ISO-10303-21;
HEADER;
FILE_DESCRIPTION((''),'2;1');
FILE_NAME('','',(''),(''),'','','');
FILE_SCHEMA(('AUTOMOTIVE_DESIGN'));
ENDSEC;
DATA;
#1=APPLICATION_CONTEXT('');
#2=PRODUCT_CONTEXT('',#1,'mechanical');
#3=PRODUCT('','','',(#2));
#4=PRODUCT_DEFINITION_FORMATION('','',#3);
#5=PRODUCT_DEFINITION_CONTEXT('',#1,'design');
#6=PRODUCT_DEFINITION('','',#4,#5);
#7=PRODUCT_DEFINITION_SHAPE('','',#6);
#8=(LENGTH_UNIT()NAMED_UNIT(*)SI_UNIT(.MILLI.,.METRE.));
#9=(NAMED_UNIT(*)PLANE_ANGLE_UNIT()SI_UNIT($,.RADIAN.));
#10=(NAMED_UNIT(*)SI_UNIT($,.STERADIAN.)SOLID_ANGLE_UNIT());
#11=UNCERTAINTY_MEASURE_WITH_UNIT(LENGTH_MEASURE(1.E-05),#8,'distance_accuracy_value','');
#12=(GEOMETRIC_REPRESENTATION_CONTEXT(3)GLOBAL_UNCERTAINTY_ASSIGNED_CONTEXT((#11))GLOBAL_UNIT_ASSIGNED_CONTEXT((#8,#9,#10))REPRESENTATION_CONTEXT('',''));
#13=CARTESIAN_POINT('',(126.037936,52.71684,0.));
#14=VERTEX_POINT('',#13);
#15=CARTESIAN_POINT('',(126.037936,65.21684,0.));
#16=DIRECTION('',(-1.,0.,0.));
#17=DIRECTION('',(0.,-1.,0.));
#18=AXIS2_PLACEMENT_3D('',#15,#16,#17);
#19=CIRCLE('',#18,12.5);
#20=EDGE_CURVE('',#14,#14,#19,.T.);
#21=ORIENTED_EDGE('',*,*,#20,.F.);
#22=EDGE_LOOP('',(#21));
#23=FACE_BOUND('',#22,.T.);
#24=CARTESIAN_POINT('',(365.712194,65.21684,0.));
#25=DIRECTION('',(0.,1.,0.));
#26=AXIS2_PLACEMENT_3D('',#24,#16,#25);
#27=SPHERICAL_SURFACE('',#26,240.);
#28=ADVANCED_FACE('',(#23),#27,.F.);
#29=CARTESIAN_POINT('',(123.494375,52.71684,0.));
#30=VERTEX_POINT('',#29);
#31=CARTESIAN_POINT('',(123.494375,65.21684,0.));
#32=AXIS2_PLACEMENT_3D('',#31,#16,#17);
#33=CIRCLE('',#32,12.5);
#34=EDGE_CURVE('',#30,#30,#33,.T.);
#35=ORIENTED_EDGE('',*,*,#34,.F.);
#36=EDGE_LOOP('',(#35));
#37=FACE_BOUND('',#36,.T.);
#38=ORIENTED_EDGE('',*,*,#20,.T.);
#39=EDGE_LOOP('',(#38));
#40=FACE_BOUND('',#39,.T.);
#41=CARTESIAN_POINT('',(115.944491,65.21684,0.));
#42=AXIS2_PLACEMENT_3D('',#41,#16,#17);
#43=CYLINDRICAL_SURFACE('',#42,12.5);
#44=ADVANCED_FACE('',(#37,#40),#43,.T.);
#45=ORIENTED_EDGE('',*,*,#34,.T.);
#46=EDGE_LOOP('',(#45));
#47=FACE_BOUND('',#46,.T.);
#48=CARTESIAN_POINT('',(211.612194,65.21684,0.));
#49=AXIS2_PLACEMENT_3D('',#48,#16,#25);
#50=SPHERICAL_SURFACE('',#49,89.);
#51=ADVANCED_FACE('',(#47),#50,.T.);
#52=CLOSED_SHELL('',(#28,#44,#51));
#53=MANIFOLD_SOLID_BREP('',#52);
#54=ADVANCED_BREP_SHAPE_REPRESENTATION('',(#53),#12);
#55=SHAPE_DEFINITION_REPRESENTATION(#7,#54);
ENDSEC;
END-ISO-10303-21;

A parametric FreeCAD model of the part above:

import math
import FreeCAD as App
import Part
import Sketcher
from FreeCAD import Vector

doc = App.newDocument("Part")
body = doc.addObject("PartDesign::Body", "Body")

# Sketch on XY plane
sketch1 = body.newObject("Sketcher::SketchObject", "Sketch")
sketch1.AttachmentSupport = (doc.getObject("XY_Plane"), [""])
sketch1.MapMode = "FlatFace"
sketch1.addGeometry([
    Part.LineSegment(Vector(126.037936, 77.71684, 0), Vector(123.494375, 77.71684, 0)),
    Part.ArcOfCircle(Part.Circle(Vector(211.612194, 65.21684, 0), Vector(0, 0, 1), 89), math.radians(171.926146), math.radians(180)),
    Part.LineSegment(Vector(122.612194, 65.21684, 0), Vector(125.712194, 65.21684, 0)),
    Part.ArcOfCircle(Part.Circle(Vector(365.712194, 65.21684, 0), Vector(0, 0, 1), 240), math.radians(177.014494), math.radians(180)),
], False)
sketch1.addGeometry(Part.LineSegment(Vector(122.612194, 65.21684, 0), Vector(365.712194, 65.21684, 0)), True)  # axis
sketch1.addConstraint([
    Sketcher.Constraint("Coincident", 0, 2, 1, 1),
    Sketcher.Constraint("Coincident", 1, 2, 2, 1),
    Sketcher.Constraint("Coincident", 2, 2, 3, 2),
    Sketcher.Constraint("Coincident", 3, 1, 0, 1),
    Sketcher.Constraint("Horizontal", 0),
    Sketcher.Constraint("Horizontal", 2),
    Sketcher.Constraint("Horizontal", 4),
    Sketcher.Constraint("Coincident", 4, 1, 1, 2),
    Sketcher.Constraint("Coincident", 4, 2, 3, 3),
    Sketcher.Constraint("Horizontal", 1, 3, 3, 3),
    Sketcher.Constraint("Radius", 1, 89.0),
    Sketcher.Constraint("Radius", 3, 240.0),
    Sketcher.Constraint("DistanceX", 2, 1, 2, 2, 3.1),
    Sketcher.Constraint("DistanceY", 1, 3, 0, 2, 12.5),
    Sketcher.Constraint("DistanceY", -1, 1, 1, 3, 65.21684),
    Sketcher.Constraint("DistanceX", -1, 1, 1, 3, 211.612194),
])
revolution = body.newObject("PartDesign::Revolution", "Revolution")
revolution.Profile = sketch1
revolution.ReferenceAxis = (sketch1, ["Axis0"])
revolution.Angle = 360

doc.recompute()
